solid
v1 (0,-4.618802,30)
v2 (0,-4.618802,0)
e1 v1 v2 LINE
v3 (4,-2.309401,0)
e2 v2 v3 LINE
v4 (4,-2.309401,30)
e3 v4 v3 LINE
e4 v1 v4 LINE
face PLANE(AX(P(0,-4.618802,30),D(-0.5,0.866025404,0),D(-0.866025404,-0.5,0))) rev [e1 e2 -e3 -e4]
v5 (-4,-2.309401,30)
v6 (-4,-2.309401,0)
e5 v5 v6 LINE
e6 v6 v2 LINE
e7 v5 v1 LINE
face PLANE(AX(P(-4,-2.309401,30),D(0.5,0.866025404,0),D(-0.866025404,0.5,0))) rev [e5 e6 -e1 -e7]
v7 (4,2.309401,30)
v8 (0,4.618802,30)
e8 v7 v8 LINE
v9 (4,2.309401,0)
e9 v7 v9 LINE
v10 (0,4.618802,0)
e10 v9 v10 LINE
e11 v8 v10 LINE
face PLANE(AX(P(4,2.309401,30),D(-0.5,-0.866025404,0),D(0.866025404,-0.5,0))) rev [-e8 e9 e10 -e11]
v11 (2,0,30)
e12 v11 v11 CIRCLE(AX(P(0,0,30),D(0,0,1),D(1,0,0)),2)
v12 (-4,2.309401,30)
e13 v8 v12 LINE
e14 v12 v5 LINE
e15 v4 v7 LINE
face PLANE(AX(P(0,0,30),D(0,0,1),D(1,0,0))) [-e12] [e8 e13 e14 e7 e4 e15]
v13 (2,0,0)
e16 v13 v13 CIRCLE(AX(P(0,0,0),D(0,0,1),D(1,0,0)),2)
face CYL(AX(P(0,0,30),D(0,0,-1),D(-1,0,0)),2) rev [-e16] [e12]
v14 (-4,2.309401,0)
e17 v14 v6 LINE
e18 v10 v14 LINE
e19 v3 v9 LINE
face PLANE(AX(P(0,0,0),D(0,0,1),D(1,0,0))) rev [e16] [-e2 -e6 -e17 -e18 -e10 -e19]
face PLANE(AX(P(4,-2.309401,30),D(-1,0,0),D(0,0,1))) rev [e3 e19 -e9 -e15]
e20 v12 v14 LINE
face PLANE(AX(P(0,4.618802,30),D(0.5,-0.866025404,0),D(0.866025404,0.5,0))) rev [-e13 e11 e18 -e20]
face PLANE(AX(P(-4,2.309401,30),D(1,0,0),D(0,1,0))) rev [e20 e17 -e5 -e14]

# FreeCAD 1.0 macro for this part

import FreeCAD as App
import Part
import Sketcher

V = App.Vector
Q = App.Units.Quantity


def add_polygon(sketch, points):
    """Adds a closed chain of lines whose ends are joined by coincident constraints."""
    first, n = sketch.GeometryCount, len(points)
    for a, b in zip(points, points[1:] + points[:1]):
        sketch.addGeometry(Part.LineSegment(App.Vector(*a, 0), App.Vector(*b, 0)), False)
    for i in range(n):
        sketch.addConstraint(Sketcher.Constraint("Coincident", first + i, 2, first + (i + 1) % n, 1))

doc = App.newDocument("Part")
params = doc.addObject("Spreadsheet::Sheet", "Params")
for row, (alias, value) in enumerate([
    ("sketch1_diameter", "4 mm"),
    ("pad1_length", "30 mm"),
], start=1):
    params.set(f"A{row}", alias)
    params.set(f"B{row}", "=" + value)
    params.setAlias(f"B{row}", alias)

body = doc.addObject("PartDesign::Body", "Body")

# Sketch on XY plane
sketch1 = body.newObject("Sketcher::SketchObject", "Sketch")
sketch1.AttachmentSupport = (doc.getObject("XY_Plane"), [""])
sketch1.MapMode = "FlatFace"
add_polygon(sketch1, [(4, -2.3), (4, 2.3), (0, 4.6), (-4, 2.3), (-4, -2.3), (0, -4.6)])  # lines 0-5
sketch1.addGeometry(Part.Circle(V(0, 0, 0), V(0, 0, 1), 2), False)  # 6
sketch1.addConstraint(Sketcher.Constraint("Vertical", 0))
sketch1.addConstraint(Sketcher.Constraint("Vertical", 3))
sketch1.addConstraint(Sketcher.Constraint("Coincident", 6, 3, -1, 1))
sketch1.addConstraint(Sketcher.Constraint("Symmetric", 0, 2, 3, 2, -1, 1))
sketch1.addConstraint(Sketcher.Constraint("Symmetric", 1, 2, 4, 2, -1, 1))
sketch1.addConstraint(Sketcher.Constraint("PointOnObject", 1, 2, -2))
sketch1.addConstraint(Sketcher.Constraint("Parallel", 2, 5))
sketch1.addConstraint(Sketcher.Constraint("Horizontal", 0, 2, 2, 2))
sketch1.addConstraint(Sketcher.Constraint("Diameter", 6, 4.0))
sketch1.addConstraint(Sketcher.Constraint("Angle", 1, Q("150 deg")))
sketch1.addConstraint(Sketcher.Constraint("DistanceX", -1, 1, 0, 2, 4.0))
sketch1.addConstraint(Sketcher.Constraint("DistanceY", -1, 1, 0, 2, 2.309401))
sketch1.setExpression("Constraints[14]", "Params.sketch1_diameter")
pad1 = body.newObject("PartDesign::Pad", "Pad")
pad1.Profile = sketch1
pad1.setExpression("Length", "Params.pad1_length")

doc.recompute()
